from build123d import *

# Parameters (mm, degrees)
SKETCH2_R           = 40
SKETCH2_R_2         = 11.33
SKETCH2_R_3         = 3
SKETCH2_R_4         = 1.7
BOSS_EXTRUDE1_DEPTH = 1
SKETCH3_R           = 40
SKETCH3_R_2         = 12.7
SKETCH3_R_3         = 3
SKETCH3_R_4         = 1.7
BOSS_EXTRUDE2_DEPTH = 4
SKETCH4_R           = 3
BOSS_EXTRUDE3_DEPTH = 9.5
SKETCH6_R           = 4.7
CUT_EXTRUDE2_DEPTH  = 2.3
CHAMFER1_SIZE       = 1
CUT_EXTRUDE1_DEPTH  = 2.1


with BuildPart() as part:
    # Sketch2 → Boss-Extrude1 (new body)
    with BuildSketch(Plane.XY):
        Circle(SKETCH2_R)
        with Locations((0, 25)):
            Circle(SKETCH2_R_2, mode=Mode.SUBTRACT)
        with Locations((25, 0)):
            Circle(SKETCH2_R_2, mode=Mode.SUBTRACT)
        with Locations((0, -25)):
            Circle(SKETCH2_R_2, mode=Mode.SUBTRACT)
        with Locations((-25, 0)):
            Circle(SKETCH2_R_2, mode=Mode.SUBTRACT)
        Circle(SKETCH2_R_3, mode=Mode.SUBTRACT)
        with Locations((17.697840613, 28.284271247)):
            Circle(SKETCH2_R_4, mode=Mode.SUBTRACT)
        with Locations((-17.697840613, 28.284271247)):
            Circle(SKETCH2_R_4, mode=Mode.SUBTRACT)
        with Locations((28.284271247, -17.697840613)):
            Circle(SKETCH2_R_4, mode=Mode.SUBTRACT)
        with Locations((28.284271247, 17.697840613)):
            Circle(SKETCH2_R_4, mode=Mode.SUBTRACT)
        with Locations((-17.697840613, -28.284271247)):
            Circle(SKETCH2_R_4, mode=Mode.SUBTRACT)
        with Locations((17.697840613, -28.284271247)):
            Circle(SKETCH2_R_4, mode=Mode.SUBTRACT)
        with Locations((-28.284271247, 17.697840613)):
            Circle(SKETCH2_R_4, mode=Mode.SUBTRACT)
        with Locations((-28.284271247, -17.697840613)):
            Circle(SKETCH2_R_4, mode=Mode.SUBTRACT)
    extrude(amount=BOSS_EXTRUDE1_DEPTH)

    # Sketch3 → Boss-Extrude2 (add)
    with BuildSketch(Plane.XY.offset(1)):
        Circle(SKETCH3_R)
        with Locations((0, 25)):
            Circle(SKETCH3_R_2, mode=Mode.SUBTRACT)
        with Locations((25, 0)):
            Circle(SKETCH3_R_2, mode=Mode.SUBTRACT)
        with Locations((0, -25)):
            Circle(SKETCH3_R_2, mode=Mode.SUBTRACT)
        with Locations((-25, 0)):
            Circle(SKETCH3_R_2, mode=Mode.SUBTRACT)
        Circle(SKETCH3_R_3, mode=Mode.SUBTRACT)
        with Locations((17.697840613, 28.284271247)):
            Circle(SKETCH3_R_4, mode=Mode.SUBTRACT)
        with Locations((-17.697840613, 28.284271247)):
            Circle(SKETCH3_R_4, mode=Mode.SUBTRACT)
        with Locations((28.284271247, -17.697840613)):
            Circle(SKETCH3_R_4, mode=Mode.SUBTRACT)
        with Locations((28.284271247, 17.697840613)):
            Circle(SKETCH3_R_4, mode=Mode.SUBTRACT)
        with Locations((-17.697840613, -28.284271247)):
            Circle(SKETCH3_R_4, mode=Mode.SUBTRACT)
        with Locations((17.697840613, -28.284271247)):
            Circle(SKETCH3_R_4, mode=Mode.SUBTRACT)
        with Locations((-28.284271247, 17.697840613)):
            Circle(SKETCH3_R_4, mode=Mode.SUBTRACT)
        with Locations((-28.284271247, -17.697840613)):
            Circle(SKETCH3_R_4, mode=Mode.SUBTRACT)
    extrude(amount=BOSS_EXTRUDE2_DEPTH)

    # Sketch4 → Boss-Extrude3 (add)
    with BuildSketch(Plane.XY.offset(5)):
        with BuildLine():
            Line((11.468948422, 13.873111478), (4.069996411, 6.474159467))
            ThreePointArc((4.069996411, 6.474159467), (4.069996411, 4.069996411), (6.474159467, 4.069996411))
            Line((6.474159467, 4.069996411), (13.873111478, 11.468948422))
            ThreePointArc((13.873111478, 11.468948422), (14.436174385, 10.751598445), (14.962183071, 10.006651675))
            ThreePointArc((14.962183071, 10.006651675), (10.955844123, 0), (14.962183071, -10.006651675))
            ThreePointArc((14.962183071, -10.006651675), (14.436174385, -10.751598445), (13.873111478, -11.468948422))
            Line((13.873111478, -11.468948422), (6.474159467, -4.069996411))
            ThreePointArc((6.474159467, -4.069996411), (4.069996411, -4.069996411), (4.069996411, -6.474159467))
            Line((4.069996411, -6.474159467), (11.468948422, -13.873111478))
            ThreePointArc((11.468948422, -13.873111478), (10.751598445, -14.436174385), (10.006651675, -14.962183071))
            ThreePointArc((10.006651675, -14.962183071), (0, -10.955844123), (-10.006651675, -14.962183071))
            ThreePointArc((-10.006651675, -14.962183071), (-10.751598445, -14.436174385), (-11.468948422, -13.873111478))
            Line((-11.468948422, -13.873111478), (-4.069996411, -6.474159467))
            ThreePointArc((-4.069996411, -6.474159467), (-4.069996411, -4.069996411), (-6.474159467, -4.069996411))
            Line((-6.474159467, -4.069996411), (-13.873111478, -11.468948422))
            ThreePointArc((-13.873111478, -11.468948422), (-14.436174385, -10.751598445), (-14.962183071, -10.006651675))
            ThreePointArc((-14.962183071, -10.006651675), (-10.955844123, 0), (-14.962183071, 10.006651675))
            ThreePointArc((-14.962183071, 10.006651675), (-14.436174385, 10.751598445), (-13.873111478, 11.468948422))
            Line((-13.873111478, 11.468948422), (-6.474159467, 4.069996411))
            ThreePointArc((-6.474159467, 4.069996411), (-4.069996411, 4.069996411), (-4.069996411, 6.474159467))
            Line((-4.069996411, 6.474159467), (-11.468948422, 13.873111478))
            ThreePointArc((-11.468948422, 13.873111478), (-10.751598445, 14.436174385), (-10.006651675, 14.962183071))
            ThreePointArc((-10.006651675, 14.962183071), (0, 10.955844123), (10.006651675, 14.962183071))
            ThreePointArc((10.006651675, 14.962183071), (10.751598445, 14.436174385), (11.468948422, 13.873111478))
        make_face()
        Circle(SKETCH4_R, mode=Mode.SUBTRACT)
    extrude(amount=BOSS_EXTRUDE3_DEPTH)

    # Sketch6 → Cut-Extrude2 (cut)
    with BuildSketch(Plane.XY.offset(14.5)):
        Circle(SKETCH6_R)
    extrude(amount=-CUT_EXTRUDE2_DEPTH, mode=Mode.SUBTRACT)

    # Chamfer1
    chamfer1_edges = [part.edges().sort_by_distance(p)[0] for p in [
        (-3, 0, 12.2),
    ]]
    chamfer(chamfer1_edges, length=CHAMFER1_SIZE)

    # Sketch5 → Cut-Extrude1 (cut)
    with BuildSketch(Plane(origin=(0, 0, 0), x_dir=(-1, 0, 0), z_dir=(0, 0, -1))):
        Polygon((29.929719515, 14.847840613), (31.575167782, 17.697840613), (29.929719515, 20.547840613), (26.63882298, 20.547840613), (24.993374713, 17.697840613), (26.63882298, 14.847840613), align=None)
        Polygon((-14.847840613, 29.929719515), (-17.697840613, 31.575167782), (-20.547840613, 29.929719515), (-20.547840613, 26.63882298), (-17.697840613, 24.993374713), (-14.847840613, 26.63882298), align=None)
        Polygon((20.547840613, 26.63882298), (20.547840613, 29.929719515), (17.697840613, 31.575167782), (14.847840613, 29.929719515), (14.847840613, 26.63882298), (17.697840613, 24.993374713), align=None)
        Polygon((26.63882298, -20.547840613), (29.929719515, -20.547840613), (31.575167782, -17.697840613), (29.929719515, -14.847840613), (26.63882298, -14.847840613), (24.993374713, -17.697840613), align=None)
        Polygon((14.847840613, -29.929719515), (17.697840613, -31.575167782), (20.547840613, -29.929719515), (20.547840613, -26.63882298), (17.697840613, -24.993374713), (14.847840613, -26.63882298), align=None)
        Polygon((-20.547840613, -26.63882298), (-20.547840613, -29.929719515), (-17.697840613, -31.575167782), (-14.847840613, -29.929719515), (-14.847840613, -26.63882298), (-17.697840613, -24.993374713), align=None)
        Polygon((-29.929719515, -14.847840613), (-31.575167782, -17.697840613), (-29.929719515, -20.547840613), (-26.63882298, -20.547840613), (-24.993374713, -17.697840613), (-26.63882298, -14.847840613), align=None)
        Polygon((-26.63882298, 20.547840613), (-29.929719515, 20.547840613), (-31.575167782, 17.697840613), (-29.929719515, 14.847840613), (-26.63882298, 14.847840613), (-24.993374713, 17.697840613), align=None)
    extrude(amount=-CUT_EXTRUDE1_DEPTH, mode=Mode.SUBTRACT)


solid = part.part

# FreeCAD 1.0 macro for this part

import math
import FreeCAD as App
import Part
import Sketcher
Q = App.Units.Quantity


def edges_at(feature, points):
    """Names of the edges that pass closest to the given points."""
    edges = feature.Shape.Edges
    near = lambda p: min(range(len(edges)), key=lambda i: edges[i].distToShape(Part.Vertex(*p))[0])
    return sorted({f"Edge{near(p) + 1}" for p in points})

doc = App.newDocument("Part")
body = doc.addObject("PartDesign::Body", "Body")

sketch1 = doc.addObject("Sketcher::SketchObject", "Sketch")
body.addObject(sketch1)
sketch1.AttachmentSupport = (doc.XY_Plane, [""])
sketch1.MapMode = "FlatFace"
sketch1.addGeometry(Part.Circle(App.Vector(0, 0, 0), App.Vector(0, 0, 1), 40), False)
sketch1.addGeometry(Part.Circle(App.Vector(-17.7, -28.3, 0), App.Vector(0, 0, 1), 1.7), False)
sketch1.addGeometry(Part.Circle(App.Vector(-28.3, -17.7, 0), App.Vector(0, 0, 1), 1.7), False)
sketch1.addGeometry(Part.Circle(App.Vector(17.7, -28.3, 0), App.Vector(0, 0, 1), 1.7), False)
sketch1.addGeometry(Part.Circle(App.Vector(0, -25, 0), App.Vector(0, 0, 1), 11.3), False)
sketch1.addGeometry(Part.Circle(App.Vector(28.3, -17.7, 0), App.Vector(0, 0, 1), 1.7), False)
sketch1.addGeometry(Part.Circle(App.Vector(-25, 0, 0), App.Vector(0, 0, 1), 11.3), False)
sketch1.addGeometry(Part.Circle(App.Vector(-28.3, 17.7, 0), App.Vector(0, 0, 1), 1.7), False)
sketch1.addGeometry(Part.Circle(App.Vector(-17.7, 28.3, 0), App.Vector(0, 0, 1), 1.7), False)
sketch1.addGeometry(Part.Circle(App.Vector(0, 0, 0), App.Vector(0, 0, 1), 3), False)
sketch1.addGeometry(Part.Circle(App.Vector(25, 0, 0), App.Vector(0, 0, 1), 11.3), False)
sketch1.addGeometry(Part.Circle(App.Vector(28.3, 17.7, 0), App.Vector(0, 0, 1), 1.7), False)
sketch1.addGeometry(Part.Circle(App.Vector(0, 25, 0), App.Vector(0, 0, 1), 11.3), False)
sketch1.addGeometry(Part.Circle(App.Vector(17.7, 28.3, 0), App.Vector(0, 0, 1), 1.7), False)
sketch1.addConstraint(Sketcher.Constraint("Coincident", 0, 3, -1, 1))
sketch1.addConstraint(Sketcher.Constraint("Coincident", 9, 3, -1, 1))
sketch1.addConstraint(Sketcher.Constraint("Equal", 1, 2))
sketch1.addConstraint(Sketcher.Constraint("Equal", 2, 3))
sketch1.addConstraint(Sketcher.Constraint("Equal", 3, 5))
sketch1.addConstraint(Sketcher.Constraint("Equal", 4, 6))
sketch1.addConstraint(Sketcher.Constraint("Equal", 5, 7))
sketch1.addConstraint(Sketcher.Constraint("Equal", 7, 8))
sketch1.addConstraint(Sketcher.Constraint("Equal", 6, 10))
sketch1.addConstraint(Sketcher.Constraint("Equal", 8, 11))
sketch1.addConstraint(Sketcher.Constraint("Equal", 10, 12))
sketch1.addConstraint(Sketcher.Constraint("Equal", 11, 13))
sketch1.addConstraint(Sketcher.Constraint("Symmetric", 5, 3, 7, 3, -1, 1))
sketch1.addConstraint(Sketcher.Constraint("Symmetric", 3, 3, 8, 3, -1, 1))
sketch1.addConstraint(Sketcher.Constraint("Symmetric", 6, 3, 10, 3, -1, 1))
sketch1.addConstraint(Sketcher.Constraint("Symmetric", 2, 3, 11, 3, -1, 1))
sketch1.addConstraint(Sketcher.Constraint("Symmetric", 4, 3, 12, 3, -1, 1))
sketch1.addConstraint(Sketcher.Constraint("Symmetric", 1, 3, 13, 3, -1, 1))
sketch1.addConstraint(Sketcher.Constraint("Symmetric", 1, 3, 3, 3, -2))
sketch1.addConstraint(Sketcher.Constraint("Symmetric", 2, 3, 5, 3, -2))
sketch1.addConstraint(Sketcher.Constraint("PointOnObject", 4, 3, -2))
sketch1.addConstraint(Sketcher.Constraint("PointOnObject", 6, 3, -1))
sketch1.addConstraint(Sketcher.Constraint("Diameter", 0, 80.0))
sketch1.addConstraint(Sketcher.Constraint("Diameter", 9, 6.0))
sketch1.addConstraint(Sketcher.Constraint("Diameter", 1, 3.4))
sketch1.addConstraint(Sketcher.Constraint("Diameter", 4, 22.66))
sketch1.addConstraint(Sketcher.Constraint("DistanceY", 4, 3, -1, 1, 25.0))
sketch1.addConstraint(Sketcher.Constraint("DistanceX", 6, 3, -1, 1, 25.0))
sketch1.addConstraint(Sketcher.Constraint("DistanceX", 1, 3, -1, 1, 17.697841))
sketch1.addConstraint(Sketcher.Constraint("DistanceY", 1, 3, -1, 1, 28.284271))
sketch1.addConstraint(Sketcher.Constraint("DistanceX", 2, 3, -1, 1, 28.284271))
sketch1.addConstraint(Sketcher.Constraint("DistanceY", 2, 3, -1, 1, 17.697841))
pad1 = doc.addObject("PartDesign::Pad", "Pad")
body.addObject(pad1)
pad1.Profile = sketch1
pad1.Length = 1

sketch2 = doc.addObject("Sketcher::SketchObject", "Sketch001")
body.addObject(sketch2)
sketch2.AttachmentSupport = (doc.XY_Plane, [""])
sketch2.MapMode = "FlatFace"
sketch2.AttachmentOffset = App.Placement(App.Vector(0, 0, 1), App.Rotation())
sketch2.addGeometry(Part.Circle(App.Vector(0, 0, 0), App.Vector(0, 0, 1), 40), False)
sketch2.addGeometry(Part.Circle(App.Vector(-17.7, -28.3, 0), App.Vector(0, 0, 1), 1.7), False)
sketch2.addGeometry(Part.Circle(App.Vector(0, -25, 0), App.Vector(0, 0, 1), 12.7), False)
sketch2.addGeometry(Part.Circle(App.Vector(-28.3, -17.7, 0), App.Vector(0, 0, 1), 1.7), False)
sketch2.addGeometry(Part.Circle(App.Vector(17.7, -28.3, 0), App.Vector(0, 0, 1), 1.7), False)
sketch2.addGeometry(Part.Circle(App.Vector(28.3, -17.7, 0), App.Vector(0, 0, 1), 1.7), False)
sketch2.addGeometry(Part.Circle(App.Vector(-25, 0, 0), App.Vector(0, 0, 1), 12.7), False)
sketch2.addGeometry(Part.Circle(App.Vector(-28.3, 17.7, 0), App.Vector(0, 0, 1), 1.7), False)
sketch2.addGeometry(Part.Circle(App.Vector(0, 0, 0), App.Vector(0, 0, 1), 3), False)
sketch2.addGeometry(Part.Circle(App.Vector(0, 25, 0), App.Vector(0, 0, 1), 12.7), False)
sketch2.addGeometry(Part.Circle(App.Vector(-17.7, 28.3, 0), App.Vector(0, 0, 1), 1.7), False)
sketch2.addGeometry(Part.Circle(App.Vector(25, 0, 0), App.Vector(0, 0, 1), 12.7), False)
sketch2.addGeometry(Part.Circle(App.Vector(28.3, 17.7, 0), App.Vector(0, 0, 1), 1.7), False)
sketch2.addGeometry(Part.Circle(App.Vector(17.7, 28.3, 0), App.Vector(0, 0, 1), 1.7), False)
sketch2.addConstraint(Sketcher.Constraint("Coincident", 0, 3, -1, 1))
sketch2.addConstraint(Sketcher.Constraint("Coincident", 8, 3, -1, 1))
sketch2.addConstraint(Sketcher.Constraint("Equal", 1, 3))
sketch2.addConstraint(Sketcher.Constraint("Equal", 3, 4))
sketch2.addConstraint(Sketcher.Constraint("Equal", 4, 5))
sketch2.addConstraint(Sketcher.Constraint("Equal", 2, 6))
sketch2.addConstraint(Sketcher.Constraint("Equal", 5, 7))
sketch2.addConstraint(Sketcher.Constraint("Equal", 6, 9))
sketch2.addConstraint(Sketcher.Constraint("Equal", 7, 10))
sketch2.addConstraint(Sketcher.Constraint("Equal", 9, 11))
sketch2.addConstraint(Sketcher.Constraint("Equal", 10, 12))
sketch2.addConstraint(Sketcher.Constraint("Equal", 12, 13))
sketch2.addConstraint(Sketcher.Constraint("Symmetric", 5, 3, 7, 3, -1, 1))
sketch2.addConstraint(Sketcher.Constraint("Symmetric", 2, 3, 9, 3, -1, 1))
sketch2.addConstraint(Sketcher.Constraint("Symmetric", 4, 3, 10, 3, -1, 1))
sketch2.addConstraint(Sketcher.Constraint("Symmetric", 6, 3, 11, 3, -1, 1))
sketch2.addConstraint(Sketcher.Constraint("Symmetric", 3, 3, 12, 3, -1, 1))
sketch2.addConstraint(Sketcher.Constraint("Symmetric", 1, 3, 13, 3, -1, 1))
sketch2.addConstraint(Sketcher.Constraint("Symmetric", 1, 3, 4, 3, -2))
sketch2.addConstraint(Sketcher.Constraint("Symmetric", 3, 3, 5, 3, -2))
sketch2.addConstraint(Sketcher.Constraint("PointOnObject", 2, 3, -2))
sketch2.addConstraint(Sketcher.Constraint("PointOnObject", 6, 3, -1))
sketch2.addConstraint(Sketcher.Constraint("Diameter", 0, 80.0))
sketch2.addConstraint(Sketcher.Constraint("Diameter", 8, 6.0))
sketch2.addConstraint(Sketcher.Constraint("Diameter", 1, 3.4))
sketch2.addConstraint(Sketcher.Constraint("Diameter", 2, 25.4))
sketch2.addConstraint(Sketcher.Constraint("DistanceY", 2, 3, -1, 1, 25.0))
sketch2.addConstraint(Sketcher.Constraint("DistanceX", 6, 3, -1, 1, 25.0))
sketch2.addConstraint(Sketcher.Constraint("DistanceX", 1, 3, -1, 1, 17.697841))
sketch2.addConstraint(Sketcher.Constraint("DistanceY", 1, 3, -1, 1, 28.284271))
sketch2.addConstraint(Sketcher.Constraint("DistanceX", 3, 3, -1, 1, 28.284271))
sketch2.addConstraint(Sketcher.Constraint("DistanceY", 3, 3, -1, 1, 17.697841))
pad2 = doc.addObject("PartDesign::Pad", "Pad001")
body.addObject(pad2)
pad2.Profile = sketch2
pad2.Length = 4

sketch3 = doc.addObject("Sketcher::SketchObject", "Sketch002")
body.addObject(sketch3)
sketch3.AttachmentSupport = (doc.XY_Plane, [""])
sketch3.MapMode = "FlatFace"
sketch3.AttachmentOffset = App.Placement(App.Vector(0, 0, 5), App.Rotation())
sketch3.addGeometry(Part.LineSegment(App.Vector(4.1, 6.5, 0), App.Vector(11.5, 13.9, 0)), False)
sketch3.addGeometry(Part.ArcOfCircle(Part.Circle(App.Vector(0, 0, 0), App.Vector(0, 0, 1), 18), math.radians(50.42), math.radians(56.23)), False)
sketch3.addGeometry(Part.ArcOfCircle(Part.Circle(App.Vector(0, 25.5, 0), App.Vector(0, 0, 1), 14.5), math.radians(-134), math.radians(-46)), False)
sketch3.addGeometry(Part.ArcOfCircle(Part.Circle(App.Vector(0, 0, 0), App.Vector(0, 0, 1), 18), math.radians(123.77), math.radians(129.58)), False)
sketch3.addGeometry(Part.LineSegment(App.Vector(-11.5, 13.9, 0), App.Vector(-4.1, 6.5, 0)), False)
sketch3.addGeometry(Part.ArcOfCircle(Part.Circle(App.Vector(-5.3, 5.3, 0), App.Vector(0, 0, 1), 1.7), math.radians(-135), math.radians(45)), False)
sketch3.addGeometry(Part.LineSegment(App.Vector(-6.5, 4.1, 0), App.Vector(-13.9, 11.5, 0)), False)
sketch3.addGeometry(Part.ArcOfCircle(Part.Circle(App.Vector(0, 0, 0), App.Vector(0, 0, 1), 18), math.radians(140.42), math.radians(146.23)), False)
sketch3.addGeometry(Part.ArcOfCircle(Part.Circle(App.Vector(-25.5, 0, 0), App.Vector(0, 0, 1), 14.5), math.radians(-44), math.radians(44)), False)
sketch3.addGeometry(Part.ArcOfCircle(Part.Circle(App.Vector(0, 0, 0), App.Vector(0, 0, 1), 18), math.radians(-146.23), math.radians(-140.42)), False)
sketch3.addGeometry(Part.LineSegment(App.Vector(-13.9, -11.5, 0), App.Vector(-6.5, -4.1, 0)), False)
sketch3.addGeometry(Part.ArcOfCircle(Part.Circle(App.Vector(-5.3, -5.3, 0), App.Vector(0, 0, 1), 1.7), math.radians(-45), math.radians(135)), False)
sketch3.addGeometry(Part.LineSegment(App.Vector(-4.1, -6.5, 0), App.Vector(-11.5, -13.9, 0)), False)
sketch3.addGeometry(Part.ArcOfCircle(Part.Circle(App.Vector(0, 0, 0), App.Vector(0, 0, 1), 18), math.radians(-129.58), math.radians(-123.77)), False)
sketch3.addGeometry(Part.ArcOfCircle(Part.Circle(App.Vector(0, -25.5, 0), App.Vector(0, 0, 1), 14.5), math.radians(46), math.radians(134)), False)
sketch3.addGeometry(Part.ArcOfCircle(Part.Circle(App.Vector(0, 0, 0), App.Vector(0, 0, 1), 18), math.radians(-56.23), math.radians(-50.42)), False)
sketch3.addGeometry(Part.LineSegment(App.Vector(11.5, -13.9, 0), App.Vector(4.1, -6.5, 0)), False)
sketch3.addGeometry(Part.ArcOfCircle(Part.Circle(App.Vector(5.3, -5.3, 0), App.Vector(0, 0, 1), 1.7), math.radians(45), math.radians(225)), False)
sketch3.addGeometry(Part.LineSegment(App.Vector(6.5, -4.1, 0), App.Vector(13.9, -11.5, 0)), False)
sketch3.addGeometry(Part.ArcOfCircle(Part.Circle(App.Vector(0, 0, 0), App.Vector(0, 0, 1), 18), math.radians(-39.58), math.radians(-33.77)), False)
sketch3.addGeometry(Part.ArcOfCircle(Part.Circle(App.Vector(25.5, 0, 0), App.Vector(0, 0, 1), 14.5), math.radians(136), math.radians(224)), False)
sketch3.addGeometry(Part.ArcOfCircle(Part.Circle(App.Vector(0, 0, 0), App.Vector(0, 0, 1), 18), math.radians(33.77), math.radians(39.58)), False)
sketch3.addGeometry(Part.LineSegment(App.Vector(13.9, 11.5, 0), App.Vector(6.5, 4.1, 0)), False)
sketch3.addGeometry(Part.ArcOfCircle(Part.Circle(App.Vector(5.3, 5.3, 0), App.Vector(0, 0, 1), 1.7), math.radians(135), math.radians(315)), False)
sketch3.addGeometry(Part.Circle(App.Vector(0, 0, 0), App.Vector(0, 0, 1), 3), False)
sketch3.addConstraint(Sketcher.Constraint("Coincident", 0, 2, 1, 1))
sketch3.addConstraint(Sketcher.Constraint("Coincident", 1, 2, 2, 2))
sketch3.addConstraint(Sketcher.Constraint("Coincident", 2, 1, 3, 1))
sketch3.addConstraint(Sketcher.Constraint("Coincident", 3, 2, 4, 1))
sketch3.addConstraint(Sketcher.Constraint("Tangent", 4, 2, 5, 2))
sketch3.addConstraint(Sketcher.Constraint("Tangent", 5, 1, 6, 1))
sketch3.addConstraint(Sketcher.Constraint("Coincident", 6, 2, 7, 1))
sketch3.addConstraint(Sketcher.Constraint("Coincident", 7, 2, 8, 2))
sketch3.addConstraint(Sketcher.Constraint("Coincident", 8, 1, 9, 1))
sketch3.addConstraint(Sketcher.Constraint("Coincident", 9, 2, 10, 1))
sketch3.addConstraint(Sketcher.Constraint("Tangent", 10, 2, 11, 2))
sketch3.addConstraint(Sketcher.Constraint("Tangent", 11, 1, 12, 1))
sketch3.addConstraint(Sketcher.Constraint("Coincident", 12, 2, 13, 1))
sketch3.addConstraint(Sketcher.Constraint("Coincident", 13, 2, 14, 2))
sketch3.addConstraint(Sketcher.Constraint("Coincident", 14, 1, 15, 1))
sketch3.addConstraint(Sketcher.Constraint("Coincident", 15, 2, 16, 1))
sketch3.addConstraint(Sketcher.Constraint("Tangent", 16, 2, 17, 2))
sketch3.addConstraint(Sketcher.Constraint("Tangent", 17, 1, 18, 1))
sketch3.addConstraint(Sketcher.Constraint("Coincident", 18, 2, 19, 1))
sketch3.addConstraint(Sketcher.Constraint("Coincident", 19, 2, 20, 2))
sketch3.addConstraint(Sketcher.Constraint("Coincident", 20, 1, 21, 1))
sketch3.addConstraint(Sketcher.Constraint("Coincident", 21, 2, 22, 1))
sketch3.addConstraint(Sketcher.Constraint("Tangent", 22, 2, 23, 2))
sketch3.addConstraint(Sketcher.Constraint("Tangent", 23, 1, 0, 1))
sketch3.addConstraint(Sketcher.Constraint("Coincident", 1, 3, -1, 1))
sketch3.addConstraint(Sketcher.Constraint("Coincident", 3, 3, -1, 1))
sketch3.addConstraint(Sketcher.Constraint("Coincident", 7, 3, -1, 1))
sketch3.addConstraint(Sketcher.Constraint("Coincident", 9, 3, -1, 1))
sketch3.addConstraint(Sketcher.Constraint("Coincident", 13, 3, -1, 1))
sketch3.addConstraint(Sketcher.Constraint("Coincident", 15, 3, -1, 1))
sketch3.addConstraint(Sketcher.Constraint("Coincident", 19, 3, -1, 1))
sketch3.addConstraint(Sketcher.Constraint("Coincident", 21, 3, -1, 1))
sketch3.addConstraint(Sketcher.Constraint("Coincident", 24, 3, -1, 1))
sketch3.addConstraint(Sketcher.Constraint("Equal", 1, 3))
sketch3.addConstraint(Sketcher.Constraint("Equal", 3, 7))
sketch3.addConstraint(Sketcher.Constraint("Equal", 2, 8))
sketch3.addConstraint(Sketcher.Constraint("Equal", 7, 9))
sketch3.addConstraint(Sketcher.Constraint("Equal", 5, 11))
sketch3.addConstraint(Sketcher.Constraint("Equal", 9, 13))
sketch3.addConstraint(Sketcher.Constraint("Equal", 8, 14))
sketch3.addConstraint(Sketcher.Constraint("Equal", 13, 15))
sketch3.addConstraint(Sketcher.Constraint("Equal", 11, 17))
sketch3.addConstraint(Sketcher.Constraint("Equal", 15, 19))
sketch3.addConstraint(Sketcher.Constraint("Equal", 14, 20))
sketch3.addConstraint(Sketcher.Constraint("Equal", 19, 21))
sketch3.addConstraint(Sketcher.Constraint("Equal", 17, 23))
sketch3.addConstraint(Sketcher.Constraint("Symmetric", 2, 3, 14, 3, -1, 1))
sketch3.addConstraint(Sketcher.Constraint("Symmetric", 5, 3, 17, 3, -1, 1))
sketch3.addConstraint(Sketcher.Constraint("Symmetric", 8, 3, 20, 3, -1, 1))
sketch3.addConstraint(Sketcher.Constraint("Symmetric", 11, 3, 23, 3, -1, 1))
sketch3.addConstraint(Sketcher.Constraint("Symmetric", 11, 3, 17, 3, -2))
sketch3.addConstraint(Sketcher.Constraint("PointOnObject", 2, 3, -2))
sketch3.addConstraint(Sketcher.Constraint("PointOnObject", 8, 3, -1))
sketch3.addConstraint(Sketcher.Constraint("Perpendicular", 0, 4))
sketch3.addConstraint(Sketcher.Constraint("Parallel", 4, 6))
sketch3.addConstraint(Sketcher.Constraint("Perpendicular", 6, 10))
sketch3.addConstraint(Sketcher.Constraint("Parallel", 10, 12))
sketch3.addConstraint(Sketcher.Constraint("Perpendicular", 12, 16))
sketch3.addConstraint(Sketcher.Constraint("Parallel", 16, 18))
sketch3.addConstraint(Sketcher.Constraint("Perpendicular", 18, 22))
sketch3.addConstraint(Sketcher.Constraint("Horizontal", 0, 2, 3, 2))
sketch3.addConstraint(Sketcher.Constraint("Equal", 4, 6))
sketch3.addConstraint(Sketcher.Constraint("Diameter", 24, 6.0))
sketch3.addConstraint(Sketcher.Constraint("Radius", 1, 18.0))
sketch3.addConstraint(Sketcher.Constraint("Radius", 2, 14.5))
sketch3.addConstraint(Sketcher.Constraint("Radius", 5, 1.7))
sketch3.addConstraint(Sketcher.Constraint("Distance", 0, 10.463698))
sketch3.addConstraint(Sketcher.Constraint("DistanceX", -1, 1, 1, 2, 10.006652))
sketch3.addConstraint(Sketcher.Constraint("DistanceY", -1, 1, 7, 2, 10.006652))
pad3 = doc.addObject("PartDesign::Pad", "Pad002")
body.addObject(pad3)
pad3.Profile = sketch3
pad3.Length = 9.5

sketch4 = doc.addObject("Sketcher::SketchObject", "Sketch003")
body.addObject(sketch4)
sketch4.AttachmentSupport = (doc.XY_Plane, [""])
sketch4.MapMode = "FlatFace"
sketch4.AttachmentOffset = App.Placement(App.Vector(0, 0, 14.5), App.Rotation())
sketch4.addGeometry(Part.Circle(App.Vector(0, 0, 0), App.Vector(0, 0, 1), 4.7), False)
sketch4.addConstraint(Sketcher.Constraint("Coincident", 0, 3, -1, 1))
sketch4.addConstraint(Sketcher.Constraint("Diameter", 0, 9.4))
pocket1 = doc.addObject("PartDesign::Pocket", "Pocket")
body.addObject(pocket1)
pocket1.Profile = sketch4
pocket1.Length = 2.3
doc.recompute()

chamfer = doc.addObject("PartDesign::Chamfer", "Chamfer")
body.addObject(chamfer)
chamfer.Base = (pocket1, edges_at(pocket1, [(-3, 0, 12.2)]))
chamfer.Size = 1

sketch5 = doc.addObject("Sketcher::SketchObject", "Sketch004")
body.addObject(sketch5)
sketch5.AttachmentSupport = (doc.XY_Plane, [""])
sketch5.MapMode = "FlatFace"
sketch5.addGeometry(Part.LineSegment(App.Vector(-29.9, 14.8, 0), App.Vector(-31.6, 17.7, 0)), False)
sketch5.addGeometry(Part.LineSegment(App.Vector(-31.6, 17.7, 0), App.Vector(-29.9, 20.5, 0)), False)
sketch5.addGeometry(Part.LineSegment(App.Vector(-29.9, 20.5, 0), App.Vector(-26.6, 20.5, 0)), False)
sketch5.addGeometry(Part.LineSegment(App.Vector(-26.6, 20.5, 0), App.Vector(-25, 17.7, 0)), False)
sketch5.addGeometry(Part.LineSegment(App.Vector(-25, 17.7, 0), App.Vector(-26.6, 14.8, 0)), False)
sketch5.addGeometry(Part.LineSegment(App.Vector(-26.6, 14.8, 0), App.Vector(-29.9, 14.8, 0)), False)
sketch5.addGeometry(Part.LineSegment(App.Vector(14.8, 29.9, 0), App.Vector(17.7, 31.6, 0)), False)
sketch5.addGeometry(Part.LineSegment(App.Vector(17.7, 31.6, 0), App.Vector(20.5, 29.9, 0)), False)
sketch5.addGeometry(Part.LineSegment(App.Vector(20.5, 29.9, 0), App.Vector(20.5, 26.6, 0)), False)
sketch5.addGeometry(Part.LineSegment(App.Vector(20.5, 26.6, 0), App.Vector(17.7, 25, 0)), False)
sketch5.addGeometry(Part.LineSegment(App.Vector(17.7, 25, 0), App.Vector(14.8, 26.6, 0)), False)
sketch5.addGeometry(Part.LineSegment(App.Vector(14.8, 26.6, 0), App.Vector(14.8, 29.9, 0)), False)
sketch5.addGeometry(Part.LineSegment(App.Vector(-20.5, 26.6, 0), App.Vector(-20.5, 29.9, 0)), False)
sketch5.addGeometry(Part.LineSegment(App.Vector(-20.5, 29.9, 0), App.Vector(-17.7, 31.6, 0)), False)
sketch5.addGeometry(Part.LineSegment(App.Vector(-17.7, 31.6, 0), App.Vector(-14.8, 29.9, 0)), False)
sketch5.addGeometry(Part.LineSegment(App.Vector(-14.8, 29.9, 0), App.Vector(-14.8, 26.6, 0)), False)
sketch5.addGeometry(Part.LineSegment(App.Vector(-14.8, 26.6, 0), App.Vector(-17.7, 25, 0)), False)
sketch5.addGeometry(Part.LineSegment(App.Vector(-17.7, 25, 0), App.Vector(-20.5, 26.6, 0)), False)
sketch5.addGeometry(Part.LineSegment(App.Vector(-26.6, -20.5, 0), App.Vector(-29.9, -20.5, 0)), False)
sketch5.addGeometry(Part.LineSegment(App.Vector(-29.9, -20.5, 0), App.Vector(-31.6, -17.7, 0)), False)
sketch5.addGeometry(Part.LineSegment(App.Vector(-31.6, -17.7, 0), App.Vector(-29.9, -14.8, 0)), False)
sketch5.addGeometry(Part.LineSegment(App.Vector(-29.9, -14.8, 0), App.Vector(-26.6, -14.8, 0)), False)
sketch5.addGeometry(Part.LineSegment(App.Vector(-26.6, -14.8, 0), App.Vector(-25, -17.7, 0)), False)
sketch5.addGeometry(Part.LineSegment(App.Vector(-25, -17.7, 0), App.Vector(-26.6, -20.5, 0)), False)
sketch5.addGeometry(Part.LineSegment(App.Vector(-14.8, -29.9, 0), App.Vector(-17.7, -31.6, 0)), False)
sketch5.addGeometry(Part.LineSegment(App.Vector(-17.7, -31.6, 0), App.Vector(-20.5, -29.9, 0)), False)
sketch5.addGeometry(Part.LineSegment(App.Vector(-20.5, -29.9, 0), App.Vector(-20.5, -26.6, 0)), False)
sketch5.addGeometry(Part.LineSegment(App.Vector(-20.5, -26.6, 0), App.Vector(-17.7, -25, 0)), False)
sketch5.addGeometry(Part.LineSegment(App.Vector(-17.7, -25, 0), App.Vector(-14.8, -26.6, 0)), False)
sketch5.addGeometry(Part.LineSegment(App.Vector(-14.8, -26.6, 0), App.Vector(-14.8, -29.9, 0)), False)
sketch5.addGeometry(Part.LineSegment(App.Vector(20.5, -26.6, 0), App.Vector(20.5, -29.9, 0)), False)
sketch5.addGeometry(Part.LineSegment(App.Vector(20.5, -29.9, 0), App.Vector(17.7, -31.6, 0)), False)
sketch5.addGeometry(Part.LineSegment(App.Vector(17.7, -31.6, 0), App.Vector(14.8, -29.9, 0)), False)
sketch5.addGeometry(Part.LineSegment(App.Vector(14.8, -29.9, 0), App.Vector(14.8, -26.6, 0)), False)
sketch5.addGeometry(Part.LineSegment(App.Vector(14.8, -26.6, 0), App.Vector(17.7, -25, 0)), False)
sketch5.addGeometry(Part.LineSegment(App.Vector(17.7, -25, 0), App.Vector(20.5, -26.6, 0)), False)
sketch5.addGeometry(Part.LineSegment(App.Vector(29.9, -14.8, 0), App.Vector(31.6, -17.7, 0)), False)
sketch5.addGeometry(Part.LineSegment(App.Vector(31.6, -17.7, 0), App.Vector(29.9, -20.5, 0)), False)
sketch5.addGeometry(Part.LineSegment(App.Vector(29.9, -20.5, 0), App.Vector(26.6, -20.5, 0)), False)
sketch5.addGeometry(Part.LineSegment(App.Vector(26.6, -20.5, 0), App.Vector(25, -17.7, 0)), False)
sketch5.addGeometry(Part.LineSegment(App.Vector(25, -17.7, 0), App.Vector(26.6, -14.8, 0)), False)
sketch5.addGeometry(Part.LineSegment(App.Vector(26.6, -14.8, 0), App.Vector(29.9, -14.8, 0)), False)
sketch5.addGeometry(Part.LineSegment(App.Vector(26.6, 20.5, 0), App.Vector(29.9, 20.5, 0)), False)
sketch5.addGeometry(Part.LineSegment(App.Vector(29.9, 20.5, 0), App.Vector(31.6, 17.7, 0)), False)
sketch5.addGeometry(Part.LineSegment(App.Vector(31.6, 17.7, 0), App.Vector(29.9, 14.8, 0)), False)
sketch5.addGeometry(Part.LineSegment(App.Vector(29.9, 14.8, 0), App.Vector(26.6, 14.8, 0)), False)
sketch5.addGeometry(Part.LineSegment(App.Vector(26.6, 14.8, 0), App.Vector(25, 17.7, 0)), False)
sketch5.addGeometry(Part.LineSegment(App.Vector(25, 17.7, 0), App.Vector(26.6, 20.5, 0)), False)
sketch5.addConstraint(Sketcher.Constraint("Coincident", 0, 2, 1, 1))
sketch5.addConstraint(Sketcher.Constraint("Coincident", 1, 2, 2, 1))
sketch5.addConstraint(Sketcher.Constraint("Coincident", 2, 2, 3, 1))
sketch5.addConstraint(Sketcher.Constraint("Coincident", 3, 2, 4, 1))
sketch5.addConstraint(Sketcher.Constraint("Coincident", 4, 2, 5, 1))
sketch5.addConstraint(Sketcher.Constraint("Coincident", 5, 2, 0, 1))
sketch5.addConstraint(Sketcher.Constraint("Coincident", 6, 2, 7, 1))
sketch5.addConstraint(Sketcher.Constraint("Coincident", 7, 2, 8, 1))
sketch5.addConstraint(Sketcher.Constraint("Coincident", 8, 2, 9, 1))
sketch5.addConstraint(Sketcher.Constraint("Coincident", 9, 2, 10, 1))
sketch5.addConstraint(Sketcher.Constraint("Coincident", 10, 2, 11, 1))
sketch5.addConstraint(Sketcher.Constraint("Coincident", 11, 2, 6, 1))
sketch5.addConstraint(Sketcher.Constraint("Coincident", 12, 2, 13, 1))
sketch5.addConstraint(Sketcher.Constraint("Coincident", 13, 2, 14, 1))
sketch5.addConstraint(Sketcher.Constraint("Coincident", 14, 2, 15, 1))
sketch5.addConstraint(Sketcher.Constraint("Coincident", 15, 2, 16, 1))
sketch5.addConstraint(Sketcher.Constraint("Coincident", 16, 2, 17, 1))
sketch5.addConstraint(Sketcher.Constraint("Coincident", 17, 2, 12, 1))
sketch5.addConstraint(Sketcher.Constraint("Coincident", 18, 2, 19, 1))
sketch5.addConstraint(Sketcher.Constraint("Coincident", 19, 2, 20, 1))
sketch5.addConstraint(Sketcher.Constraint("Coincident", 20, 2, 21, 1))
sketch5.addConstraint(Sketcher.Constraint("Coincident", 21, 2, 22, 1))
sketch5.addConstraint(Sketcher.Constraint("Coincident", 22, 2, 23, 1))
sketch5.addConstraint(Sketcher.Constraint("Coincident", 23, 2, 18, 1))
sketch5.addConstraint(Sketcher.Constraint("Coincident", 24, 2, 25, 1))
sketch5.addConstraint(Sketcher.Constraint("Coincident", 25, 2, 26, 1))
sketch5.addConstraint(Sketcher.Constraint("Coincident", 26, 2, 27, 1))
sketch5.addConstraint(Sketcher.Constraint("Coincident", 27, 2, 28, 1))
sketch5.addConstraint(Sketcher.Constraint("Coincident", 28, 2, 29, 1))
sketch5.addConstraint(Sketcher.Constraint("Coincident", 29, 2, 24, 1))
sketch5.addConstraint(Sketcher.Constraint("Coincident", 30, 2, 31, 1))
sketch5.addConstraint(Sketcher.Constraint("Coincident", 31, 2, 32, 1))
sketch5.addConstraint(Sketcher.Constraint("Coincident", 32, 2, 33, 1))
sketch5.addConstraint(Sketcher.Constraint("Coincident", 33, 2, 34, 1))
sketch5.addConstraint(Sketcher.Constraint("Coincident", 34, 2, 35, 1))
sketch5.addConstraint(Sketcher.Constraint("Coincident", 35, 2, 30, 1))
sketch5.addConstraint(Sketcher.Constraint("Coincident", 36, 2, 37, 1))
sketch5.addConstraint(Sketcher.Constraint("Coincident", 37, 2, 38, 1))
sketch5.addConstraint(Sketcher.Constraint("Coincident", 38, 2, 39, 1))
sketch5.addConstraint(Sketcher.Constraint("Coincident", 39, 2, 40, 1))
sketch5.addConstraint(Sketcher.Constraint("Coincident", 40, 2, 41, 1))
sketch5.addConstraint(Sketcher.Constraint("Coincident", 41, 2, 36, 1))
sketch5.addConstraint(Sketcher.Constraint("Coincident", 42, 2, 43, 1))
sketch5.addConstraint(Sketcher.Constraint("Coincident", 43, 2, 44, 1))
sketch5.addConstraint(Sketcher.Constraint("Coincident", 44, 2, 45, 1))
sketch5.addConstraint(Sketcher.Constraint("Coincident", 45, 2, 46, 1))
sketch5.addConstraint(Sketcher.Constraint("Coincident", 46, 2, 47, 1))
sketch5.addConstraint(Sketcher.Constraint("Coincident", 47, 2, 42, 1))
sketch5.addConstraint(Sketcher.Constraint("Horizontal", 2))
sketch5.addConstraint(Sketcher.Constraint("Horizontal", 5))
sketch5.addConstraint(Sketcher.Constraint("Vertical", 8))
sketch5.addConstraint(Sketcher.Constraint("Vertical", 11))
sketch5.addConstraint(Sketcher.Constraint("Vertical", 12))
sketch5.addConstraint(Sketcher.Constraint("Vertical", 15))
sketch5.addConstraint(Sketcher.Constraint("Horizontal", 18))
sketch5.addConstraint(Sketcher.Constraint("Horizontal", 21))
sketch5.addConstraint(Sketcher.Constraint("Vertical", 26))
sketch5.addConstraint(Sketcher.Constraint("Vertical", 29))
sketch5.addConstraint(Sketcher.Constraint("Vertical", 30))
sketch5.addConstraint(Sketcher.Constraint("Vertical", 33))
sketch5.addConstraint(Sketcher.Constraint("Horizontal", 38))
sketch5.addConstraint(Sketcher.Constraint("Horizontal", 41))
sketch5.addConstraint(Sketcher.Constraint("Horizontal", 42))
sketch5.addConstraint(Sketcher.Constraint("Horizontal", 45))
sketch5.addConstraint(Sketcher.Constraint("Symmetric", 6, 2, 24, 2, -1, 1))
sketch5.addConstraint(Sketcher.Constraint("Symmetric", 7, 2, 25, 2, -1, 1))
sketch5.addConstraint(Sketcher.Constraint("Symmetric", 9, 2, 27, 2, -1, 1))
sketch5.addConstraint(Sketcher.Constraint("Symmetric", 10, 2, 28, 2, -1, 1))
sketch5.addConstraint(Sketcher.Constraint("Symmetric", 12, 2, 30, 2, -1, 1))
sketch5.addConstraint(Sketcher.Constraint("Symmetric", 13, 2, 31, 2, -1, 1))
sketch5.addConstraint(Sketcher.Constraint("Symmetric", 14, 2, 32, 2, -1, 1))
sketch5.addConstraint(Sketcher.Constraint("Symmetric", 16, 2, 34, 2, -1, 1))
sketch5.addConstraint(Sketcher.Constraint("Symmetric", 0, 2, 36, 2, -1, 1))
sketch5.addConstraint(Sketcher.Constraint("Symmetric", 1, 2, 37, 2, -1, 1))
sketch5.addConstraint(Sketcher.Constraint("Symmetric", 3, 2, 39, 2, -1, 1))
sketch5.addConstraint(Sketcher.Constraint("Symmetric", 4, 2, 40, 2, -1, 1))
sketch5.addConstraint(Sketcher.Constraint("Symmetric", 18, 2, 42, 2, -1, 1))
sketch5.addConstraint(Sketcher.Constraint("Symmetric", 19, 2, 43, 2, -1, 1))
sketch5.addConstraint(Sketcher.Constraint("Symmetric", 20, 2, 44, 2, -1, 1))
sketch5.addConstraint(Sketcher.Constraint("Symmetric", 22, 2, 46, 2, -1, 1))
sketch5.addConstraint(Sketcher.Constraint("Symmetric", 7, 2, 12, 2, -2))
sketch5.addConstraint(Sketcher.Constraint("Symmetric", 6, 2, 13, 2, -2))
sketch5.addConstraint(Sketcher.Constraint("Symmetric", 11, 2, 14, 2, -2))
sketch5.addConstraint(Sketcher.Constraint("Symmetric", 9, 2, 16, 2, -2))
sketch5.addConstraint(Sketcher.Constraint("Symmetric", 19, 2, 36, 2, -2))
sketch5.addConstraint(Sketcher.Constraint("Symmetric", 18, 2, 37, 2, -2))
sketch5.addConstraint(Sketcher.Constraint("Symmetric", 22, 2, 39, 2, -2))
sketch5.addConstraint(Sketcher.Constraint("Symmetric", 21, 2, 40, 2, -2))
sketch5.addConstraint(Sketcher.Constraint("Parallel", 0, 3))
sketch5.addConstraint(Sketcher.Constraint("Parallel", 1, 4))
sketch5.addConstraint(Sketcher.Constraint("Perpendicular", 3, 6))
sketch5.addConstraint(Sketcher.Constraint("Perpendicular", 4, 7))
sketch5.addConstraint(Sketcher.Constraint("Parallel", 6, 9))
sketch5.addConstraint(Sketcher.Constraint("Parallel", 7, 10))
sketch5.addConstraint(Sketcher.Constraint("Parallel", 9, 13))
sketch5.addConstraint(Sketcher.Constraint("Parallel", 13, 16))
sketch5.addConstraint(Sketcher.Constraint("Parallel", 14, 17))
sketch5.addConstraint(Sketcher.Constraint("Perpendicular", 17, 20))
sketch5.addConstraint(Sketcher.Constraint("Parallel", 20, 23))
sketch5.addConstraint(Sketcher.Constraint("Perpendicular", 22, 24))
sketch5.addConstraint(Sketcher.Constraint("Parallel", 24, 27))
sketch5.addConstraint(Sketcher.Constraint("Parallel", 31, 34))
sketch5.addConstraint(Sketcher.Constraint("Parallel", 32, 35))
sketch5.addConstraint(Sketcher.Constraint("Perpendicular", 34, 36))
sketch5.addConstraint(Sketcher.Constraint("Parallel", 36, 39))
sketch5.addConstraint(Sketcher.Constraint("Parallel", 43, 46))
sketch5.addConstraint(Sketcher.Constraint("Parallel", 44, 47))
sketch5.addConstraint(Sketcher.Constraint("Horizontal", 0, 2, 3, 2))
sketch5.addConstraint(Sketcher.Constraint("Horizontal", 8, 2, 10, 2))
sketch5.addConstraint(Sketcher.Constraint("Horizontal", 7, 2, 11, 2))
sketch5.addConstraint(Sketcher.Constraint("Vertical", 2, 2, 4, 2))
sketch5.addConstraint(Sketcher.Constraint("Equal", 45, 8))
sketch5.addConstraint(Sketcher.Constraint("Equal", 4, 6))
sketch5.addConstraint(Sketcher.Constraint("Angle", 0, Q("120 deg")))
sketch5.addConstraint(Sketcher.Constraint("DistanceY", 4, 2, 2, 2, 5.7))
sketch5.addConstraint(Sketcher.Constraint("DistanceX", 2, 1, 2, 2, 3.290897))
sketch5.addConstraint(Sketcher.Constraint("DistanceY", -1, 1, 0, 2, 17.697841))
sketch5.addConstraint(Sketcher.Constraint("DistanceX", 1, 2, -1, 1, 29.92972))
sketch5.addConstraint(Sketcher.Constraint("DistanceX", -1, 1, 6, 2, 17.697841))
sketch5.addConstraint(Sketcher.Constraint("DistanceY", -1, 1, 7, 2, 29.92972))
pocket2 = doc.addObject("PartDesign::Pocket", "Pocket001")
body.addObject(pocket2)
pocket2.Profile = sketch5
pocket2.Length = 2.1
pocket2.Reversed = True

doc.recompute()
